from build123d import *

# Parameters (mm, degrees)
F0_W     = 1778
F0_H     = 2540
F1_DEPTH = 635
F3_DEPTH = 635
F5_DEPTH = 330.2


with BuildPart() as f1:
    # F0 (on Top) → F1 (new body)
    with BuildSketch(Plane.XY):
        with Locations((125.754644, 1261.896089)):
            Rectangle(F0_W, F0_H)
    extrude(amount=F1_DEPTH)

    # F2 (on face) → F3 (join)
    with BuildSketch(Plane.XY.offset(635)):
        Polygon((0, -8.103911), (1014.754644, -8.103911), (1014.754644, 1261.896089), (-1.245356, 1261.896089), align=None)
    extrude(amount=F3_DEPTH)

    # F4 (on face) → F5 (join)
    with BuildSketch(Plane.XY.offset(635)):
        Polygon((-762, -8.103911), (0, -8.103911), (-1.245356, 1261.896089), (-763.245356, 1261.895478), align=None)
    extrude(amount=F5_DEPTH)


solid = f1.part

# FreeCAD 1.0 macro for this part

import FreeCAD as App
import Part
import Sketcher
from FreeCAD import Vector
Q = App.Units.Quantity


def add_polygon(sketch, points):
    """Adds a closed chain of lines whose ends are joined by coincident constraints."""
    first, n = sketch.GeometryCount, len(points)
    for a, b in zip(points, points[1:] + points[:1]):
        sketch.addGeometry(Part.LineSegment(App.Vector(*a, 0), App.Vector(*b, 0)), False)
    for i in range(n):
        sketch.addConstraint(Sketcher.Constraint("Coincident", first + i, 2, first + (i + 1) % n, 1))

doc = App.newDocument("Part")
body = doc.addObject("PartDesign::Body", "Body")

# Sketch on XY plane
sketch1 = body.newObject("Sketcher::SketchObject", "Sketch")
sketch1.AttachmentSupport = (doc.getObject("XY_Plane"), [""])
sketch1.MapMode = "FlatFace"
add_polygon(sketch1, [(-763, 2532), (-763, -8), (1015, -8), (1015, 2532)])  # lines 0-3
sketch1.addConstraint([
    Sketcher.Constraint("Vertical", 0),
    Sketcher.Constraint("Horizontal", 1),
    Sketcher.Constraint("Vertical", 2),
    Sketcher.Constraint("Horizontal", 3),
    Sketcher.Constraint("DistanceX", 1, 1, 1, 2, Q("70 in")),
    Sketcher.Constraint("DistanceY", 0, 2, 0, 1, Q("100 in")),
    Sketcher.Constraint("DistanceY", 0, 2, -1, 1, 8.103911),
    Sketcher.Constraint("DistanceX", 0, 2, -1, 1, 763.245356),
])
pad1 = body.newObject("PartDesign::Pad", "Pad")
pad1.Profile = sketch1
pad1.Length = Q("25 in")

# Sketch on XY plane
sketch2 = body.newObject("Sketcher::SketchObject", "Sketch001")
sketch2.AttachmentSupport = (doc.getObject("XY_Plane"), [""])
sketch2.MapMode = "FlatFace"
sketch2.AttachmentOffset = App.Placement(Vector(0, 0, 25 * 25.4), App.Rotation())
add_polygon(sketch2, [(0, -8), (1015, -8), (1015, 1262), (-1, 1262)])  # lines 0-3
sketch2.addConstraint([
    Sketcher.Constraint("Horizontal", 0),
    Sketcher.Constraint("Vertical", 1),
    Sketcher.Constraint("Horizontal", 2),
    Sketcher.Constraint("PointOnObject", 3, 2, -2),
    Sketcher.Constraint("DistanceX", 2, 2, 2, 1, Q("40 in")),
    Sketcher.Constraint("DistanceY", 1, 1, 1, 2, Q("50 in")),
    Sketcher.Constraint("DistanceX", 0, 1, 0, 2, 1014.754644),
    Sketcher.Constraint("DistanceY", 0, 2, -1, 1, 8.103911),
])
pad2 = body.newObject("PartDesign::Pad", "Pad001")
pad2.Profile = sketch2
pad2.Length = Q("25 in")

# Sketch on XY plane
sketch3 = body.newObject("Sketcher::SketchObject", "Sketch002")
sketch3.AttachmentSupport = (doc.getObject("XY_Plane"), [""])
sketch3.MapMode = "FlatFace"
sketch3.AttachmentOffset = App.Placement(Vector(0, 0, 25 * 25.4), App.Rotation())
add_polygon(sketch3, [(-762, -8), (0, -8), (-1, 1262), (-763, 1262)])  # lines 0-3
sketch3.addConstraint([
    Sketcher.Constraint("Horizontal", 0),
    Sketcher.Constraint("PointOnObject", 0, 2, -2),
    Sketcher.Constraint("Parallel", 1, 3),
    Sketcher.Constraint("DistanceX", 0, 1, 0, 2, Q("30 in")),
    Sketcher.Constraint("Distance", 3, Q("50 in")),
    Sketcher.Constraint("DistanceY", 0, 2, 1, 2, Q("50 in")),
    Sketcher.Constraint("DistanceY", 0, 2, -1, 1, 8.103911),
    Sketcher.Constraint("DistanceX", 1, 2, -1, 1, 1.245356),
])
pad3 = body.newObject("PartDesign::Pad", "Pad002")
pad3.Profile = sketch3
pad3.Length = Q("13 in")

doc.recompute()
